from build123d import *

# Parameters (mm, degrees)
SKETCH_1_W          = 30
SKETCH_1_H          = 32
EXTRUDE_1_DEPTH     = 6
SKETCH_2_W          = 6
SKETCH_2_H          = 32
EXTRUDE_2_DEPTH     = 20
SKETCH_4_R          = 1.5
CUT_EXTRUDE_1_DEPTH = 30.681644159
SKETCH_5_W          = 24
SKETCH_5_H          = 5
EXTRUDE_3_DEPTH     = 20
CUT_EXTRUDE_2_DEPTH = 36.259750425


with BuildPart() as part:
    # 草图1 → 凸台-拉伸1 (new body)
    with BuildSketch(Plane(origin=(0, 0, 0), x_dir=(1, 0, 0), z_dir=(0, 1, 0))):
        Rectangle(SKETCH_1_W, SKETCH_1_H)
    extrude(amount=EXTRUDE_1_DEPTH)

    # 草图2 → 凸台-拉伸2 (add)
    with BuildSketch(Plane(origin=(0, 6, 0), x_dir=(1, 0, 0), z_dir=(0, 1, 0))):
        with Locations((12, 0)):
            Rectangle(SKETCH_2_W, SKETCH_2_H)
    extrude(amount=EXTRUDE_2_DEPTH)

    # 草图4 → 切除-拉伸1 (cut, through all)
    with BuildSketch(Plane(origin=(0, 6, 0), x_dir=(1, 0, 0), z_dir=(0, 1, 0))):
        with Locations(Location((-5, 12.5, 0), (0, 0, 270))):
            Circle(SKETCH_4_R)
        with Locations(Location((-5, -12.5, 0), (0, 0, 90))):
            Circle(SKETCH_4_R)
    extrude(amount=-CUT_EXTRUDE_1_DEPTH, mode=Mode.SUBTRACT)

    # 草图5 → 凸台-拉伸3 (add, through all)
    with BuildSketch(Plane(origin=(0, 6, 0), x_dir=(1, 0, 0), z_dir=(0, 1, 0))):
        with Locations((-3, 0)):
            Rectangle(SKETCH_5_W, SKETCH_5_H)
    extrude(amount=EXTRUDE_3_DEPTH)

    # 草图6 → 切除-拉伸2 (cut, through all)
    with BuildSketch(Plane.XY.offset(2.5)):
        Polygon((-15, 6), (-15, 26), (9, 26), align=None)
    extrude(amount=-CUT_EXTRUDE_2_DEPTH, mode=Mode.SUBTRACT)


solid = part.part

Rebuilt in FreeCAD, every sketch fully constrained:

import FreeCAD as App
import Part
import Sketcher
from FreeCAD import Vector
Q = App.Units.Quantity


def add_polygon(sketch, points):
    """Adds a closed chain of lines whose ends are joined by coincident constraints."""
    first, n = sketch.GeometryCount, len(points)
    for a, b in zip(points, points[1:] + points[:1]):
        sketch.addGeometry(Part.LineSegment(App.Vector(*a, 0), App.Vector(*b, 0)), False)
    for i in range(n):
        sketch.addConstraint(Sketcher.Constraint("Coincident", first + i, 2, first + (i + 1) % n, 1))

doc = App.newDocument("Part")
body = doc.addObject("PartDesign::Body", "Body")

# Sketch on XZ plane
sketch1 = body.newObject("Sketcher::SketchObject", "Sketch")
sketch1.AttachmentSupport = (doc.getObject("XZ_Plane"), [""])
sketch1.MapMode = "FlatFace"
add_polygon(sketch1, [(-15, -16), (-15, 16), (15, 16), (15, -16)])  # lines 0-3
sketch1.addConstraint([
    Sketcher.Constraint("Vertical", 0),
    Sketcher.Constraint("Horizontal", 1),
    Sketcher.Constraint("Vertical", 2),
    Sketcher.Constraint("Horizontal", 3),
    Sketcher.Constraint("Symmetric", 0, 2, 2, 2, -1, 1),
    Sketcher.Constraint("DistanceX", 1, 1, 1, 2, Q("30 mm")),
    Sketcher.Constraint("DistanceY", 0, 1, 0, 2, Q("32 mm")),
])
pad1 = body.newObject("PartDesign::Pad", "Pad")
pad1.Profile = sketch1
pad1.Length = 6
pad1.Reversed = True

# Sketch on XZ plane
sketch2 = body.newObject("Sketcher::SketchObject", "Sketch001")
sketch2.AttachmentSupport = (doc.getObject("XZ_Plane"), [""])
sketch2.MapMode = "FlatFace"
sketch2.AttachmentOffset = App.Placement(Vector(0, 0, -6), App.Rotation())
add_polygon(sketch2, [(9, -16), (9, 16), (15, 16), (15, -16)])  # lines 0-3
sketch2.addConstraint([
    Sketcher.Constraint("Vertical", 0),
    Sketcher.Constraint("Horizontal", 1),
    Sketcher.Constraint("Vertical", 2),
    Sketcher.Constraint("Horizontal", 3),
    Sketcher.Constraint("DistanceX", 1, 1, 1, 2, Q("6 mm")),
    Sketcher.Constraint("DistanceY", 0, 1, 0, 2, Q("32 mm")),
    Sketcher.Constraint("DistanceX", -1, 1, 0, 2, Q("9 mm")),
    Sketcher.Constraint("DistanceY", -1, 1, 0, 2, Q("16 mm")),
])
pad2 = body.newObject("PartDesign::Pad", "Pad001")
pad2.Profile = sketch2
pad2.Length = 20
pad2.Reversed = True

# Sketch on XZ plane
sketch3 = body.newObject("Sketcher::SketchObject", "Sketch002")
sketch3.AttachmentSupport = (doc.getObject("XZ_Plane"), [""])
sketch3.MapMode = "FlatFace"
sketch3.AttachmentOffset = App.Placement(Vector(0, 0, -6), App.Rotation())
sketch3.addGeometry([
    Part.Circle(Vector(-5, -12.5, 0), Vector(0, 0, 1), 1.5),
    Part.Circle(Vector(-5, 12.5, 0), Vector(0, 0, 1), 1.5),
], False)
sketch3.addConstraint([
    Sketcher.Constraint("Equal", 0, 1),
    Sketcher.Constraint("Symmetric", 0, 3, 1, 3, -1),
    Sketcher.Constraint("Diameter", 0, Q("3 mm")),
    Sketcher.Constraint("DistanceX", 0, 3, -1, 1, Q("5 mm")),
    Sketcher.Constraint("DistanceY", 0, 3, 1, 3, Q("25 mm")),
])
pocket1 = body.newObject("PartDesign::Pocket", "Pocket")
pocket1.Profile = sketch3
pocket1.Type = "ThroughAll"
pocket1.Reversed = True

# Sketch on XZ plane
sketch4 = body.newObject("Sketcher::SketchObject", "Sketch003")
sketch4.AttachmentSupport = (doc.getObject("XZ_Plane"), [""])
sketch4.MapMode = "FlatFace"
sketch4.AttachmentOffset = App.Placement(Vector(0, 0, -6), App.Rotation())
add_polygon(sketch4, [(-15, -2.5), (-15, 2.5), (9, 2.5), (9, -2.5)])  # lines 0-3
sketch4.addConstraint([
    Sketcher.Constraint("Vertical", 0),
    Sketcher.Constraint("Horizontal", 1),
    Sketcher.Constraint("Vertical", 2),
    Sketcher.Constraint("Horizontal", 3),
    Sketcher.Constraint("DistanceX", 1, 1, 1, 2, Q("24 mm")),
    Sketcher.Constraint("DistanceY", 0, 1, 0, 2, Q("5 mm")),
    Sketcher.Constraint("DistanceX", 0, 2, -1, 1, Q("15 mm")),
    Sketcher.Constraint("DistanceY", -1, 1, 0, 2, Q("2.5 mm")),
])
pad3 = body.newObject("PartDesign::Pad", "Pad002")
pad3.Profile = sketch4
pad3.Length = 20
pad3.Reversed = True

# Sketch on XY plane
sketch5 = body.newObject("Sketcher::SketchObject", "Sketch004")
sketch5.AttachmentSupport = (doc.getObject("XY_Plane"), [""])
sketch5.MapMode = "FlatFace"
sketch5.AttachmentOffset = App.Placement(Vector(0, 0, 2.5), App.Rotation())
add_polygon(sketch5, [(-15, 26), (-15, 6), (9, 26)])  # lines 0-2
sketch5.addConstraint([
    Sketcher.Constraint("Vertical", 0),
    Sketcher.Constraint("Horizontal", 2),
    Sketcher.Constraint("DistanceX", 2, 2, 2, 1, Q("24 mm")),
    Sketcher.Constraint("DistanceY", 0, 2, 0, 1, Q("20 mm")),
    Sketcher.Constraint("DistanceX", 0, 2, -1, 1, Q("15 mm")),
    Sketcher.Constraint("DistanceY", -1, 1, 0, 2, Q("6 mm")),
])
pocket2 = body.newObject("PartDesign::Pocket", "Pocket001")
pocket2.Profile = sketch5
pocket2.Type = "ThroughAll"

doc.recompute()
